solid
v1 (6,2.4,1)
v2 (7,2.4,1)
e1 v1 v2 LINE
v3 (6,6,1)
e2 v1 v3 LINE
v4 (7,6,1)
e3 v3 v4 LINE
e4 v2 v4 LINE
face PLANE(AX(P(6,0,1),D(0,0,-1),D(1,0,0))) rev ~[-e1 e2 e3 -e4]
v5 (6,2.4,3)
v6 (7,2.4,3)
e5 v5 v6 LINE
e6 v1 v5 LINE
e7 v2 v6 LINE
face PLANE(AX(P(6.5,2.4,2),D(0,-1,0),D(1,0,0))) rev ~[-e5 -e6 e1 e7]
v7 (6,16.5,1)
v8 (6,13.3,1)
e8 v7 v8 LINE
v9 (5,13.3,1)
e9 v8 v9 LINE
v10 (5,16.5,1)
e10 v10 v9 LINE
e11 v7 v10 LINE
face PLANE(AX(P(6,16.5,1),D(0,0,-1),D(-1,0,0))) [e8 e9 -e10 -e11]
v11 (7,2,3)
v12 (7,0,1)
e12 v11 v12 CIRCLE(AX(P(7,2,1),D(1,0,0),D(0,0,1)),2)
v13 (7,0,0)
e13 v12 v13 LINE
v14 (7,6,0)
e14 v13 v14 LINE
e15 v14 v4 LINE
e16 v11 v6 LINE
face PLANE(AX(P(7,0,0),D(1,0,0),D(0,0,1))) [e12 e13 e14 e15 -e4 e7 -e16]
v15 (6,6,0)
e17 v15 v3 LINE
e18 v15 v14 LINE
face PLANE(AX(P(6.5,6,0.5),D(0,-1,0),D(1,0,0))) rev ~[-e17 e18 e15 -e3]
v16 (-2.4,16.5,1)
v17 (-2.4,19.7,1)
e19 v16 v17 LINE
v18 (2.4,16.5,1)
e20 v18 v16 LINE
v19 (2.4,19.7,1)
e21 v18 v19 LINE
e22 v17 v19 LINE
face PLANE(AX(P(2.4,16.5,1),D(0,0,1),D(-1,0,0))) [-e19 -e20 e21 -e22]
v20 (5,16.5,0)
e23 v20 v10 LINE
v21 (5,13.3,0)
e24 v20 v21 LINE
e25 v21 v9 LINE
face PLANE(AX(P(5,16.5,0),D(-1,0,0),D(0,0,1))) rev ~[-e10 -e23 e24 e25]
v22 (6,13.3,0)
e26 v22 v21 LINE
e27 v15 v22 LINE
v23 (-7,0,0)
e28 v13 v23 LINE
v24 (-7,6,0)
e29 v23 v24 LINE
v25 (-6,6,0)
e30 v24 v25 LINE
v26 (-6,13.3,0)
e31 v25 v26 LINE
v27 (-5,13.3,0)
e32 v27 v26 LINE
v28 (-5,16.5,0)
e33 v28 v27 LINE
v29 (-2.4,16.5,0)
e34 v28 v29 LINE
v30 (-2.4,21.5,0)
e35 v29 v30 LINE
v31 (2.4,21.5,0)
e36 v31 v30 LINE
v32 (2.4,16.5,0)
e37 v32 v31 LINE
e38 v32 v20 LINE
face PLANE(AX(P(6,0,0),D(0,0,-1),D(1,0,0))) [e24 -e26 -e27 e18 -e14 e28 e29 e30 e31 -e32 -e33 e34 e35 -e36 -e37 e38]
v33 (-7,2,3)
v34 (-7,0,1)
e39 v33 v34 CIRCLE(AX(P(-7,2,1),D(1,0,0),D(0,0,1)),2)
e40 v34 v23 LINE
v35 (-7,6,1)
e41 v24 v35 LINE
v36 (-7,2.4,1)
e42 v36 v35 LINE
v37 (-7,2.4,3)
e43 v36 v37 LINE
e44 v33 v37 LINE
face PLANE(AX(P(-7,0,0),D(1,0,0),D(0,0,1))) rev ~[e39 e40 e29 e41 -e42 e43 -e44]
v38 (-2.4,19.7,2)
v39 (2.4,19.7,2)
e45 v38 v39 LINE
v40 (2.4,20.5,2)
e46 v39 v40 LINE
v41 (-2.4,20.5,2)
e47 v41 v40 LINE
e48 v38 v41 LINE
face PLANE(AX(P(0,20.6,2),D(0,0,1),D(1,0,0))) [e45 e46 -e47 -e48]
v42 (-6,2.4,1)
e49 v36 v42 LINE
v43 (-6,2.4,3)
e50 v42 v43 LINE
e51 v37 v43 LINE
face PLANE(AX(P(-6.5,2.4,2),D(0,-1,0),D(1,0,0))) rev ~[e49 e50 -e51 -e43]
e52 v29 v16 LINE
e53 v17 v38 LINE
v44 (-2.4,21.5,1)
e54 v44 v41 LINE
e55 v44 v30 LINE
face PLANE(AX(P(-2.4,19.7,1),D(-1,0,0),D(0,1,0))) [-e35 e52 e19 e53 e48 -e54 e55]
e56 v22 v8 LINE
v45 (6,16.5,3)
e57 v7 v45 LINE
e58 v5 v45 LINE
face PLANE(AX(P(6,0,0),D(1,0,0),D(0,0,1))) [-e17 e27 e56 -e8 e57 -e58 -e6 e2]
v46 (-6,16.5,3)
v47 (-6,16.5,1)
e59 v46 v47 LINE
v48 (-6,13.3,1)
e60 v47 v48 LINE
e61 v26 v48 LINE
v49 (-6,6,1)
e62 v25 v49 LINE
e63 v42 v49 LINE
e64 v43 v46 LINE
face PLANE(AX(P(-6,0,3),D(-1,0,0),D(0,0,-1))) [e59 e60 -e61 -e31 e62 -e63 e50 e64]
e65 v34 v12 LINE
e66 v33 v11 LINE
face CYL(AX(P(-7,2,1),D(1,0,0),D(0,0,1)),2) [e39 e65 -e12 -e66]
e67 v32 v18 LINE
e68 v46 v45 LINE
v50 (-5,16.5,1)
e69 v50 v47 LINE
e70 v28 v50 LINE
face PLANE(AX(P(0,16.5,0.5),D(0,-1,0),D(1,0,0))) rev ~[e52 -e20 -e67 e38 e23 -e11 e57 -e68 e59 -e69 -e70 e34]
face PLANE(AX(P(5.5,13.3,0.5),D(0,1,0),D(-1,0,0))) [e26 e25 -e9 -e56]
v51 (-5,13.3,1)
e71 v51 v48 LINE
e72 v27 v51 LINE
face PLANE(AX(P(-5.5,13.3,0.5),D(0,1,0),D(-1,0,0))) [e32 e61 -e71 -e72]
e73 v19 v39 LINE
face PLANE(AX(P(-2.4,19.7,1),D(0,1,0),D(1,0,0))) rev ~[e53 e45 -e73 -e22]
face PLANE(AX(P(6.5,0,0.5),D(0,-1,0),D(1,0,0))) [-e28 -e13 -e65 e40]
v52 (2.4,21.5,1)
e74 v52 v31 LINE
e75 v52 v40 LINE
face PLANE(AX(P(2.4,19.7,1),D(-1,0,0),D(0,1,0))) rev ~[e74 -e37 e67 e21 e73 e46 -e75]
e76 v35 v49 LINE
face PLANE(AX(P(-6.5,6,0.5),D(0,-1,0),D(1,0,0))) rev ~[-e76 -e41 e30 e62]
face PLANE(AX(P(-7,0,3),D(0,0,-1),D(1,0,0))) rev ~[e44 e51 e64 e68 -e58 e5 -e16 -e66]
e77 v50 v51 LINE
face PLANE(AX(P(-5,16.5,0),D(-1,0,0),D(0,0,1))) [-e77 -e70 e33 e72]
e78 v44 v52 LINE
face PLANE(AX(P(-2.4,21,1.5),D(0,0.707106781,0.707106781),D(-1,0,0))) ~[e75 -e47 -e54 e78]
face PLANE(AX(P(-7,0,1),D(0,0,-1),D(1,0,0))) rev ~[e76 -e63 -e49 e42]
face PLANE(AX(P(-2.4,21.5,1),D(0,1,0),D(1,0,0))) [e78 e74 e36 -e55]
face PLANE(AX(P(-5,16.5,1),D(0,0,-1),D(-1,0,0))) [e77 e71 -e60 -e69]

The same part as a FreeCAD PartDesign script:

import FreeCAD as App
import Part
import Sketcher

V = App.Vector


def edges_at(feature, points):
    """Names of the edges that pass closest to the given points."""
    edges = feature.Shape.Edges
    near = lambda p: min(range(len(edges)), key=lambda i: edges[i].distToShape(Part.Vertex(*p))[0])
    return sorted({f"Edge{near(p) + 1}" for p in points})

doc = App.newDocument("Part")
body = doc.addObject("PartDesign::Body", "Body")

# Sketch on XZ plane
sketch1 = body.newObject("Sketcher::SketchObject", "Sketch")
sketch1.AttachmentSupport = (doc.getObject("XZ_Plane"), [""])
sketch1.MapMode = "FlatFace"
sketch1.addGeometry([
    Part.LineSegment(V(-6, 0, 0), V(6, 0, 0)),
    Part.LineSegment(V(6, 0, 0), V(6, 3, 0)),
    Part.LineSegment(V(6, 3, 0), V(-6, 3, 0)),
    Part.LineSegment(V(-6, 3, 0), V(-6, 0, 0)),
], False)
sketch1.addConstraint([
    Sketcher.Constraint("Coincident", 0, 2, 1, 1),
    Sketcher.Constraint("Coincident", 1, 2, 2, 1),
    Sketcher.Constraint("Coincident", 2, 2, 3, 1),
    Sketcher.Constraint("Coincident", 3, 2, 0, 1),
    Sketcher.Constraint("Horizontal", 0),
    Sketcher.Constraint("Vertical", 1),
    Sketcher.Constraint("Horizontal", 2),
    Sketcher.Constraint("Vertical", 3),
    Sketcher.Constraint("Symmetric", 0, 2, 3, 2, -1, 1),
    Sketcher.Constraint("DistanceX", 0, 1, 0, 2, 12.0),
    Sketcher.Constraint("DistanceY", 1, 1, 1, 2, 3.0),
])
pad1 = body.newObject("PartDesign::Pad", "Pad")
pad1.Profile = sketch1
pad1.Length = 16.5
pad1.Reversed = True

# Sketch on XZ plane
sketch2 = body.newObject("Sketcher::SketchObject", "Sketch001")
sketch2.AttachmentSupport = (doc.getObject("XZ_Plane"), [""])
sketch2.MapMode = "FlatFace"
sketch2.addGeometry([
    Part.LineSegment(V(-7, 3, 0), V(-7, 1, 0)),  # 0
    Part.LineSegment(V(-7, 1, 0), V(-6, 1, 0)),  # 1
    Part.LineSegment(V(-6, 1, 0), V(-6, 3, 0)),  # 2
    Part.LineSegment(V(-6, 3, 0), V(-7, 3, 0)),  # 3
    Part.LineSegment(V(6, 3, 0), V(6, 1, 0)),  # 4
    Part.LineSegment(V(6, 1, 0), V(7, 1, 0)),  # 5
    Part.LineSegment(V(7, 1, 0), V(7, 3, 0)),  # 6
    Part.LineSegment(V(7, 3, 0), V(6, 3, 0)),  # 7
], False)
sketch2.addConstraint([
    Sketcher.Constraint("Coincident", 0, 2, 1, 1),
    Sketcher.Constraint("Coincident", 1, 2, 2, 1),
    Sketcher.Constraint("Coincident", 2, 2, 3, 1),
    Sketcher.Constraint("Coincident", 3, 2, 0, 1),
    Sketcher.Constraint("Coincident", 4, 2, 5, 1),
    Sketcher.Constraint("Coincident", 5, 2, 6, 1),
    Sketcher.Constraint("Coincident", 6, 2, 7, 1),
    Sketcher.Constraint("Coincident", 7, 2, 4, 1),
    Sketcher.Constraint("Vertical", 0),
    Sketcher.Constraint("Horizontal", 1),
    Sketcher.Constraint("Vertical", 2),
    Sketcher.Constraint("Horizontal", 3),
    Sketcher.Constraint("Vertical", 4),
    Sketcher.Constraint("Horizontal", 5),
    Sketcher.Constraint("Vertical", 6),
    Sketcher.Constraint("Horizontal", 7),
    Sketcher.Constraint("Symmetric", 1, 2, 4, 2, -2),
    Sketcher.Constraint("Symmetric", 3, 2, 6, 2, -2),
    Sketcher.Constraint("DistanceX", 1, 1, 1, 2, 1.0),
    Sketcher.Constraint("DistanceY", 0, 2, 0, 1, 2.0),
    Sketcher.Constraint("DistanceX", 0, 2, -1, 1, 7.0),
    Sketcher.Constraint("DistanceY", -1, 1, 0, 2, 1.0),
])
pad2 = body.newObject("PartDesign::Pad", "Pad001")
pad2.Profile = sketch2
pad2.Length = 2.4
pad2.Reversed = True

# Sketch on XZ plane
sketch3 = body.newObject("Sketcher::SketchObject", "Sketch002")
sketch3.AttachmentSupport = (doc.getObject("XZ_Plane"), [""])
sketch3.MapMode = "FlatFace"
sketch3.addGeometry([
    Part.LineSegment(V(6, 1, 0), V(6, 0, 0)),  # 0
    Part.LineSegment(V(6, 0, 0), V(7, 0, 0)),  # 1
    Part.LineSegment(V(7, 0, 0), V(7, 1, 0)),  # 2
    Part.LineSegment(V(7, 1, 0), V(6, 1, 0)),  # 3
    Part.LineSegment(V(-7, 1, 0), V(-7, 0, 0)),  # 4
    Part.LineSegment(V(-7, 0, 0), V(-6, 0, 0)),  # 5
    Part.LineSegment(V(-6, 0, 0), V(-6, 1, 0)),  # 6
    Part.LineSegment(V(-6, 1, 0), V(-7, 1, 0)),  # 7
], False)
sketch3.addConstraint([
    Sketcher.Constraint("Coincident", 0, 2, 1, 1),
    Sketcher.Constraint("Coincident", 1, 2, 2, 1),
    Sketcher.Constraint("Coincident", 2, 2, 3, 1),
    Sketcher.Constraint("Coincident", 3, 2, 0, 1),
    Sketcher.Constraint("Coincident", 4, 2, 5, 1),
    Sketcher.Constraint("Coincident", 5, 2, 6, 1),
    Sketcher.Constraint("Coincident", 6, 2, 7, 1),
    Sketcher.Constraint("Coincident", 7, 2, 4, 1),
    Sketcher.Constraint("Vertical", 0),
    Sketcher.Constraint("Horizontal", 1),
    Sketcher.Constraint("Vertical", 2),
    Sketcher.Constraint("Horizontal", 3),
    Sketcher.Constraint("Vertical", 4),
    Sketcher.Constraint("Horizontal", 5),
    Sketcher.Constraint("Vertical", 6),
    Sketcher.Constraint("Horizontal", 7),
    Sketcher.Constraint("Symmetric", 1, 2, 4, 2, -1, 1),
    Sketcher.Constraint("Symmetric", 0, 2, 5, 2, -2),
    Sketcher.Constraint("Horizontal", 3, 2, 6, 2),
    Sketcher.Constraint("Equal", 7, 0),
    Sketcher.Constraint("DistanceX", 1, 1, 1, 2, 1.0),
    Sketcher.Constraint("DistanceX", -1, 1, 0, 2, 6.0),
])
pad3 = body.newObject("PartDesign::Pad", "Pad002")
pad3.Profile = sketch3
pad3.Length = 6
pad3.Reversed = True
doc.recompute()

fillet = body.newObject("PartDesign::Fillet", "Fillet")
fillet.Base = (pad3, edges_at(pad3, [(0, 0, 3)]))
fillet.Radius = 2

# Sketch on XZ plane
sketch4 = body.newObject("Sketcher::SketchObject", "Sketch003")
sketch4.AttachmentSupport = (doc.getObject("XZ_Plane"), [""])
sketch4.MapMode = "FlatFace"
sketch4.AttachmentOffset = App.Placement(V(0, 0, -16.5), App.Rotation())
sketch4.addGeometry([
    Part.LineSegment(V(-5, 1, 0), V(-5, 0, 0)),  # 0
    Part.LineSegment(V(-5, 0, 0), V(-6, 0, 0)),  # 1
    Part.LineSegment(V(-6, 0, 0), V(-6, 1, 0)),  # 2
    Part.LineSegment(V(-6, 1, 0), V(-5, 1, 0)),  # 3
    Part.LineSegment(V(6, 1, 0), V(6, 0, 0)),  # 4
    Part.LineSegment(V(6, 0, 0), V(5, 0, 0)),  # 5
    Part.LineSegment(V(5, 0, 0), V(5, 1, 0)),  # 6
    Part.LineSegment(V(5, 1, 0), V(6, 1, 0)),  # 7
], False)
sketch4.addConstraint([
    Sketcher.Constraint("Coincident", 0, 2, 1, 1),
    Sketcher.Constraint("Coincident", 1, 2, 2, 1),
    Sketcher.Constraint("Coincident", 2, 2, 3, 1),
    Sketcher.Constraint("Coincident", 3, 2, 0, 1),
    Sketcher.Constraint("Coincident", 4, 2, 5, 1),
    Sketcher.Constraint("Coincident", 5, 2, 6, 1),
    Sketcher.Constraint("Coincident", 6, 2, 7, 1),
    Sketcher.Constraint("Coincident", 7, 2, 4, 1),
    Sketcher.Constraint("Vertical", 0),
    Sketcher.Constraint("Horizontal", 1),
    Sketcher.Constraint("Vertical", 2),
    Sketcher.Constraint("Horizontal", 3),
    Sketcher.Constraint("Vertical", 4),
    Sketcher.Constraint("Horizontal", 5),
    Sketcher.Constraint("Vertical", 6),
    Sketcher.Constraint("Horizontal", 7),
    Sketcher.Constraint("Symmetric", 1, 2, 4, 2, -1, 1),
    Sketcher.Constraint("Symmetric", 0, 2, 5, 2, -2),
    Sketcher.Constraint("Horizontal", 3, 2, 6, 2),
    Sketcher.Constraint("Equal", 7, 0),
    Sketcher.Constraint("DistanceX", 1, 2, 1, 1, 1.0),
    Sketcher.Constraint("DistanceX", 0, 2, -1, 1, 5.0),
])
pocket1 = body.newObject("PartDesign::Pocket", "Pocket")
pocket1.Profile = sketch4
pocket1.Length = 3.2
pocket1.Reversed = True

# Sketch on XZ plane
sketch5 = body.newObject("Sketcher::SketchObject", "Sketch004")
sketch5.AttachmentSupport = (doc.getObject("XZ_Plane"), [""])
sketch5.MapMode = "FlatFace"
sketch5.AttachmentOffset = App.Placement(V(0, 0, -16.5), App.Rotation())
sketch5.addGeometry([
    Part.LineSegment(V(2.4, 1, 0), V(2.4, 0, 0)),
    Part.LineSegment(V(2.4, 0, 0), V(-2.4, 0, 0)),
    Part.LineSegment(V(-2.4, 0, 0), V(-2.4, 1, 0)),
    Part.LineSegment(V(-2.4, 1, 0), V(2.4, 1, 0)),
], False)
sketch5.addConstraint([
    Sketcher.Constraint("Coincident", 0, 2, 1, 1),
    Sketcher.Constraint("Coincident", 1, 2, 2, 1),
    Sketcher.Constraint("Coincident", 2, 2, 3, 1),
    Sketcher.Constraint("Coincident", 3, 2, 0, 1),
    Sketcher.Constraint("Vertical", 0),
    Sketcher.Constraint("Horizontal", 1),
    Sketcher.Constraint("Vertical", 2),
    Sketcher.Constraint("Horizontal", 3),
    Sketcher.Constraint("Symmetric", 0, 2, 1, 2, -1, 1),
    Sketcher.Constraint("DistanceY", 0, 2, 0, 1, 1.0),
    Sketcher.Constraint("DistanceX", 1, 2, 1, 1, 4.8),
])
pad4 = body.newObject("PartDesign::Pad", "Pad003")
pad4.Profile = sketch5
pad4.Length = 5
pad4.Reversed = True

# Sketch on XY plane
sketch6 = body.newObject("Sketcher::SketchObject", "Sketch005")
sketch6.AttachmentSupport = (doc.getObject("XY_Plane"), [""])
sketch6.MapMode = "FlatFace"
sketch6.AttachmentOffset = App.Placement(V(0, 0, 1), App.Rotation())
sketch6.addGeometry([
    Part.LineSegment(V(-2.4, 21.5, 0), V(-2.4, 19.7, 0)),
    Part.LineSegment(V(-2.4, 19.7, 0), V(2.4, 19.7, 0)),
    Part.LineSegment(V(2.4, 19.7, 0), V(2.4, 21.5, 0)),
    Part.LineSegment(V(2.4, 21.5, 0), V(-2.4, 21.5, 0)),
], False)
sketch6.addConstraint([
    Sketcher.Constraint("Coincident", 0, 2, 1, 1),
    Sketcher.Constraint("Coincident", 1, 2, 2, 1),
    Sketcher.Constraint("Coincident", 2, 2, 3, 1),
    Sketcher.Constraint("Coincident", 3, 2, 0, 1),
    Sketcher.Constraint("Vertical", 0),
    Sketcher.Constraint("Horizontal", 1),
    Sketcher.Constraint("Vertical", 2),
    Sketcher.Constraint("Horizontal", 3),
    Sketcher.Constraint("DistanceX", 1, 1, 1, 2, 4.8),
    Sketcher.Constraint("DistanceY", 0, 2, 0, 1, 1.8),
    Sketcher.Constraint("DistanceX", 0, 2, -1, 1, 2.4),
    Sketcher.Constraint("DistanceY", -1, 1, 0, 2, 19.7),
])
pad5 = body.newObject("PartDesign::Pad", "Pad004")
pad5.Profile = sketch6
pad5.Length = 1
doc.recompute()

chamfer = body.newObject("PartDesign::Chamfer", "Chamfer")
chamfer.Base = (pad5, edges_at(pad5, [(0, 21.5, 2)]))
chamfer.Size = 1

doc.recompute()
